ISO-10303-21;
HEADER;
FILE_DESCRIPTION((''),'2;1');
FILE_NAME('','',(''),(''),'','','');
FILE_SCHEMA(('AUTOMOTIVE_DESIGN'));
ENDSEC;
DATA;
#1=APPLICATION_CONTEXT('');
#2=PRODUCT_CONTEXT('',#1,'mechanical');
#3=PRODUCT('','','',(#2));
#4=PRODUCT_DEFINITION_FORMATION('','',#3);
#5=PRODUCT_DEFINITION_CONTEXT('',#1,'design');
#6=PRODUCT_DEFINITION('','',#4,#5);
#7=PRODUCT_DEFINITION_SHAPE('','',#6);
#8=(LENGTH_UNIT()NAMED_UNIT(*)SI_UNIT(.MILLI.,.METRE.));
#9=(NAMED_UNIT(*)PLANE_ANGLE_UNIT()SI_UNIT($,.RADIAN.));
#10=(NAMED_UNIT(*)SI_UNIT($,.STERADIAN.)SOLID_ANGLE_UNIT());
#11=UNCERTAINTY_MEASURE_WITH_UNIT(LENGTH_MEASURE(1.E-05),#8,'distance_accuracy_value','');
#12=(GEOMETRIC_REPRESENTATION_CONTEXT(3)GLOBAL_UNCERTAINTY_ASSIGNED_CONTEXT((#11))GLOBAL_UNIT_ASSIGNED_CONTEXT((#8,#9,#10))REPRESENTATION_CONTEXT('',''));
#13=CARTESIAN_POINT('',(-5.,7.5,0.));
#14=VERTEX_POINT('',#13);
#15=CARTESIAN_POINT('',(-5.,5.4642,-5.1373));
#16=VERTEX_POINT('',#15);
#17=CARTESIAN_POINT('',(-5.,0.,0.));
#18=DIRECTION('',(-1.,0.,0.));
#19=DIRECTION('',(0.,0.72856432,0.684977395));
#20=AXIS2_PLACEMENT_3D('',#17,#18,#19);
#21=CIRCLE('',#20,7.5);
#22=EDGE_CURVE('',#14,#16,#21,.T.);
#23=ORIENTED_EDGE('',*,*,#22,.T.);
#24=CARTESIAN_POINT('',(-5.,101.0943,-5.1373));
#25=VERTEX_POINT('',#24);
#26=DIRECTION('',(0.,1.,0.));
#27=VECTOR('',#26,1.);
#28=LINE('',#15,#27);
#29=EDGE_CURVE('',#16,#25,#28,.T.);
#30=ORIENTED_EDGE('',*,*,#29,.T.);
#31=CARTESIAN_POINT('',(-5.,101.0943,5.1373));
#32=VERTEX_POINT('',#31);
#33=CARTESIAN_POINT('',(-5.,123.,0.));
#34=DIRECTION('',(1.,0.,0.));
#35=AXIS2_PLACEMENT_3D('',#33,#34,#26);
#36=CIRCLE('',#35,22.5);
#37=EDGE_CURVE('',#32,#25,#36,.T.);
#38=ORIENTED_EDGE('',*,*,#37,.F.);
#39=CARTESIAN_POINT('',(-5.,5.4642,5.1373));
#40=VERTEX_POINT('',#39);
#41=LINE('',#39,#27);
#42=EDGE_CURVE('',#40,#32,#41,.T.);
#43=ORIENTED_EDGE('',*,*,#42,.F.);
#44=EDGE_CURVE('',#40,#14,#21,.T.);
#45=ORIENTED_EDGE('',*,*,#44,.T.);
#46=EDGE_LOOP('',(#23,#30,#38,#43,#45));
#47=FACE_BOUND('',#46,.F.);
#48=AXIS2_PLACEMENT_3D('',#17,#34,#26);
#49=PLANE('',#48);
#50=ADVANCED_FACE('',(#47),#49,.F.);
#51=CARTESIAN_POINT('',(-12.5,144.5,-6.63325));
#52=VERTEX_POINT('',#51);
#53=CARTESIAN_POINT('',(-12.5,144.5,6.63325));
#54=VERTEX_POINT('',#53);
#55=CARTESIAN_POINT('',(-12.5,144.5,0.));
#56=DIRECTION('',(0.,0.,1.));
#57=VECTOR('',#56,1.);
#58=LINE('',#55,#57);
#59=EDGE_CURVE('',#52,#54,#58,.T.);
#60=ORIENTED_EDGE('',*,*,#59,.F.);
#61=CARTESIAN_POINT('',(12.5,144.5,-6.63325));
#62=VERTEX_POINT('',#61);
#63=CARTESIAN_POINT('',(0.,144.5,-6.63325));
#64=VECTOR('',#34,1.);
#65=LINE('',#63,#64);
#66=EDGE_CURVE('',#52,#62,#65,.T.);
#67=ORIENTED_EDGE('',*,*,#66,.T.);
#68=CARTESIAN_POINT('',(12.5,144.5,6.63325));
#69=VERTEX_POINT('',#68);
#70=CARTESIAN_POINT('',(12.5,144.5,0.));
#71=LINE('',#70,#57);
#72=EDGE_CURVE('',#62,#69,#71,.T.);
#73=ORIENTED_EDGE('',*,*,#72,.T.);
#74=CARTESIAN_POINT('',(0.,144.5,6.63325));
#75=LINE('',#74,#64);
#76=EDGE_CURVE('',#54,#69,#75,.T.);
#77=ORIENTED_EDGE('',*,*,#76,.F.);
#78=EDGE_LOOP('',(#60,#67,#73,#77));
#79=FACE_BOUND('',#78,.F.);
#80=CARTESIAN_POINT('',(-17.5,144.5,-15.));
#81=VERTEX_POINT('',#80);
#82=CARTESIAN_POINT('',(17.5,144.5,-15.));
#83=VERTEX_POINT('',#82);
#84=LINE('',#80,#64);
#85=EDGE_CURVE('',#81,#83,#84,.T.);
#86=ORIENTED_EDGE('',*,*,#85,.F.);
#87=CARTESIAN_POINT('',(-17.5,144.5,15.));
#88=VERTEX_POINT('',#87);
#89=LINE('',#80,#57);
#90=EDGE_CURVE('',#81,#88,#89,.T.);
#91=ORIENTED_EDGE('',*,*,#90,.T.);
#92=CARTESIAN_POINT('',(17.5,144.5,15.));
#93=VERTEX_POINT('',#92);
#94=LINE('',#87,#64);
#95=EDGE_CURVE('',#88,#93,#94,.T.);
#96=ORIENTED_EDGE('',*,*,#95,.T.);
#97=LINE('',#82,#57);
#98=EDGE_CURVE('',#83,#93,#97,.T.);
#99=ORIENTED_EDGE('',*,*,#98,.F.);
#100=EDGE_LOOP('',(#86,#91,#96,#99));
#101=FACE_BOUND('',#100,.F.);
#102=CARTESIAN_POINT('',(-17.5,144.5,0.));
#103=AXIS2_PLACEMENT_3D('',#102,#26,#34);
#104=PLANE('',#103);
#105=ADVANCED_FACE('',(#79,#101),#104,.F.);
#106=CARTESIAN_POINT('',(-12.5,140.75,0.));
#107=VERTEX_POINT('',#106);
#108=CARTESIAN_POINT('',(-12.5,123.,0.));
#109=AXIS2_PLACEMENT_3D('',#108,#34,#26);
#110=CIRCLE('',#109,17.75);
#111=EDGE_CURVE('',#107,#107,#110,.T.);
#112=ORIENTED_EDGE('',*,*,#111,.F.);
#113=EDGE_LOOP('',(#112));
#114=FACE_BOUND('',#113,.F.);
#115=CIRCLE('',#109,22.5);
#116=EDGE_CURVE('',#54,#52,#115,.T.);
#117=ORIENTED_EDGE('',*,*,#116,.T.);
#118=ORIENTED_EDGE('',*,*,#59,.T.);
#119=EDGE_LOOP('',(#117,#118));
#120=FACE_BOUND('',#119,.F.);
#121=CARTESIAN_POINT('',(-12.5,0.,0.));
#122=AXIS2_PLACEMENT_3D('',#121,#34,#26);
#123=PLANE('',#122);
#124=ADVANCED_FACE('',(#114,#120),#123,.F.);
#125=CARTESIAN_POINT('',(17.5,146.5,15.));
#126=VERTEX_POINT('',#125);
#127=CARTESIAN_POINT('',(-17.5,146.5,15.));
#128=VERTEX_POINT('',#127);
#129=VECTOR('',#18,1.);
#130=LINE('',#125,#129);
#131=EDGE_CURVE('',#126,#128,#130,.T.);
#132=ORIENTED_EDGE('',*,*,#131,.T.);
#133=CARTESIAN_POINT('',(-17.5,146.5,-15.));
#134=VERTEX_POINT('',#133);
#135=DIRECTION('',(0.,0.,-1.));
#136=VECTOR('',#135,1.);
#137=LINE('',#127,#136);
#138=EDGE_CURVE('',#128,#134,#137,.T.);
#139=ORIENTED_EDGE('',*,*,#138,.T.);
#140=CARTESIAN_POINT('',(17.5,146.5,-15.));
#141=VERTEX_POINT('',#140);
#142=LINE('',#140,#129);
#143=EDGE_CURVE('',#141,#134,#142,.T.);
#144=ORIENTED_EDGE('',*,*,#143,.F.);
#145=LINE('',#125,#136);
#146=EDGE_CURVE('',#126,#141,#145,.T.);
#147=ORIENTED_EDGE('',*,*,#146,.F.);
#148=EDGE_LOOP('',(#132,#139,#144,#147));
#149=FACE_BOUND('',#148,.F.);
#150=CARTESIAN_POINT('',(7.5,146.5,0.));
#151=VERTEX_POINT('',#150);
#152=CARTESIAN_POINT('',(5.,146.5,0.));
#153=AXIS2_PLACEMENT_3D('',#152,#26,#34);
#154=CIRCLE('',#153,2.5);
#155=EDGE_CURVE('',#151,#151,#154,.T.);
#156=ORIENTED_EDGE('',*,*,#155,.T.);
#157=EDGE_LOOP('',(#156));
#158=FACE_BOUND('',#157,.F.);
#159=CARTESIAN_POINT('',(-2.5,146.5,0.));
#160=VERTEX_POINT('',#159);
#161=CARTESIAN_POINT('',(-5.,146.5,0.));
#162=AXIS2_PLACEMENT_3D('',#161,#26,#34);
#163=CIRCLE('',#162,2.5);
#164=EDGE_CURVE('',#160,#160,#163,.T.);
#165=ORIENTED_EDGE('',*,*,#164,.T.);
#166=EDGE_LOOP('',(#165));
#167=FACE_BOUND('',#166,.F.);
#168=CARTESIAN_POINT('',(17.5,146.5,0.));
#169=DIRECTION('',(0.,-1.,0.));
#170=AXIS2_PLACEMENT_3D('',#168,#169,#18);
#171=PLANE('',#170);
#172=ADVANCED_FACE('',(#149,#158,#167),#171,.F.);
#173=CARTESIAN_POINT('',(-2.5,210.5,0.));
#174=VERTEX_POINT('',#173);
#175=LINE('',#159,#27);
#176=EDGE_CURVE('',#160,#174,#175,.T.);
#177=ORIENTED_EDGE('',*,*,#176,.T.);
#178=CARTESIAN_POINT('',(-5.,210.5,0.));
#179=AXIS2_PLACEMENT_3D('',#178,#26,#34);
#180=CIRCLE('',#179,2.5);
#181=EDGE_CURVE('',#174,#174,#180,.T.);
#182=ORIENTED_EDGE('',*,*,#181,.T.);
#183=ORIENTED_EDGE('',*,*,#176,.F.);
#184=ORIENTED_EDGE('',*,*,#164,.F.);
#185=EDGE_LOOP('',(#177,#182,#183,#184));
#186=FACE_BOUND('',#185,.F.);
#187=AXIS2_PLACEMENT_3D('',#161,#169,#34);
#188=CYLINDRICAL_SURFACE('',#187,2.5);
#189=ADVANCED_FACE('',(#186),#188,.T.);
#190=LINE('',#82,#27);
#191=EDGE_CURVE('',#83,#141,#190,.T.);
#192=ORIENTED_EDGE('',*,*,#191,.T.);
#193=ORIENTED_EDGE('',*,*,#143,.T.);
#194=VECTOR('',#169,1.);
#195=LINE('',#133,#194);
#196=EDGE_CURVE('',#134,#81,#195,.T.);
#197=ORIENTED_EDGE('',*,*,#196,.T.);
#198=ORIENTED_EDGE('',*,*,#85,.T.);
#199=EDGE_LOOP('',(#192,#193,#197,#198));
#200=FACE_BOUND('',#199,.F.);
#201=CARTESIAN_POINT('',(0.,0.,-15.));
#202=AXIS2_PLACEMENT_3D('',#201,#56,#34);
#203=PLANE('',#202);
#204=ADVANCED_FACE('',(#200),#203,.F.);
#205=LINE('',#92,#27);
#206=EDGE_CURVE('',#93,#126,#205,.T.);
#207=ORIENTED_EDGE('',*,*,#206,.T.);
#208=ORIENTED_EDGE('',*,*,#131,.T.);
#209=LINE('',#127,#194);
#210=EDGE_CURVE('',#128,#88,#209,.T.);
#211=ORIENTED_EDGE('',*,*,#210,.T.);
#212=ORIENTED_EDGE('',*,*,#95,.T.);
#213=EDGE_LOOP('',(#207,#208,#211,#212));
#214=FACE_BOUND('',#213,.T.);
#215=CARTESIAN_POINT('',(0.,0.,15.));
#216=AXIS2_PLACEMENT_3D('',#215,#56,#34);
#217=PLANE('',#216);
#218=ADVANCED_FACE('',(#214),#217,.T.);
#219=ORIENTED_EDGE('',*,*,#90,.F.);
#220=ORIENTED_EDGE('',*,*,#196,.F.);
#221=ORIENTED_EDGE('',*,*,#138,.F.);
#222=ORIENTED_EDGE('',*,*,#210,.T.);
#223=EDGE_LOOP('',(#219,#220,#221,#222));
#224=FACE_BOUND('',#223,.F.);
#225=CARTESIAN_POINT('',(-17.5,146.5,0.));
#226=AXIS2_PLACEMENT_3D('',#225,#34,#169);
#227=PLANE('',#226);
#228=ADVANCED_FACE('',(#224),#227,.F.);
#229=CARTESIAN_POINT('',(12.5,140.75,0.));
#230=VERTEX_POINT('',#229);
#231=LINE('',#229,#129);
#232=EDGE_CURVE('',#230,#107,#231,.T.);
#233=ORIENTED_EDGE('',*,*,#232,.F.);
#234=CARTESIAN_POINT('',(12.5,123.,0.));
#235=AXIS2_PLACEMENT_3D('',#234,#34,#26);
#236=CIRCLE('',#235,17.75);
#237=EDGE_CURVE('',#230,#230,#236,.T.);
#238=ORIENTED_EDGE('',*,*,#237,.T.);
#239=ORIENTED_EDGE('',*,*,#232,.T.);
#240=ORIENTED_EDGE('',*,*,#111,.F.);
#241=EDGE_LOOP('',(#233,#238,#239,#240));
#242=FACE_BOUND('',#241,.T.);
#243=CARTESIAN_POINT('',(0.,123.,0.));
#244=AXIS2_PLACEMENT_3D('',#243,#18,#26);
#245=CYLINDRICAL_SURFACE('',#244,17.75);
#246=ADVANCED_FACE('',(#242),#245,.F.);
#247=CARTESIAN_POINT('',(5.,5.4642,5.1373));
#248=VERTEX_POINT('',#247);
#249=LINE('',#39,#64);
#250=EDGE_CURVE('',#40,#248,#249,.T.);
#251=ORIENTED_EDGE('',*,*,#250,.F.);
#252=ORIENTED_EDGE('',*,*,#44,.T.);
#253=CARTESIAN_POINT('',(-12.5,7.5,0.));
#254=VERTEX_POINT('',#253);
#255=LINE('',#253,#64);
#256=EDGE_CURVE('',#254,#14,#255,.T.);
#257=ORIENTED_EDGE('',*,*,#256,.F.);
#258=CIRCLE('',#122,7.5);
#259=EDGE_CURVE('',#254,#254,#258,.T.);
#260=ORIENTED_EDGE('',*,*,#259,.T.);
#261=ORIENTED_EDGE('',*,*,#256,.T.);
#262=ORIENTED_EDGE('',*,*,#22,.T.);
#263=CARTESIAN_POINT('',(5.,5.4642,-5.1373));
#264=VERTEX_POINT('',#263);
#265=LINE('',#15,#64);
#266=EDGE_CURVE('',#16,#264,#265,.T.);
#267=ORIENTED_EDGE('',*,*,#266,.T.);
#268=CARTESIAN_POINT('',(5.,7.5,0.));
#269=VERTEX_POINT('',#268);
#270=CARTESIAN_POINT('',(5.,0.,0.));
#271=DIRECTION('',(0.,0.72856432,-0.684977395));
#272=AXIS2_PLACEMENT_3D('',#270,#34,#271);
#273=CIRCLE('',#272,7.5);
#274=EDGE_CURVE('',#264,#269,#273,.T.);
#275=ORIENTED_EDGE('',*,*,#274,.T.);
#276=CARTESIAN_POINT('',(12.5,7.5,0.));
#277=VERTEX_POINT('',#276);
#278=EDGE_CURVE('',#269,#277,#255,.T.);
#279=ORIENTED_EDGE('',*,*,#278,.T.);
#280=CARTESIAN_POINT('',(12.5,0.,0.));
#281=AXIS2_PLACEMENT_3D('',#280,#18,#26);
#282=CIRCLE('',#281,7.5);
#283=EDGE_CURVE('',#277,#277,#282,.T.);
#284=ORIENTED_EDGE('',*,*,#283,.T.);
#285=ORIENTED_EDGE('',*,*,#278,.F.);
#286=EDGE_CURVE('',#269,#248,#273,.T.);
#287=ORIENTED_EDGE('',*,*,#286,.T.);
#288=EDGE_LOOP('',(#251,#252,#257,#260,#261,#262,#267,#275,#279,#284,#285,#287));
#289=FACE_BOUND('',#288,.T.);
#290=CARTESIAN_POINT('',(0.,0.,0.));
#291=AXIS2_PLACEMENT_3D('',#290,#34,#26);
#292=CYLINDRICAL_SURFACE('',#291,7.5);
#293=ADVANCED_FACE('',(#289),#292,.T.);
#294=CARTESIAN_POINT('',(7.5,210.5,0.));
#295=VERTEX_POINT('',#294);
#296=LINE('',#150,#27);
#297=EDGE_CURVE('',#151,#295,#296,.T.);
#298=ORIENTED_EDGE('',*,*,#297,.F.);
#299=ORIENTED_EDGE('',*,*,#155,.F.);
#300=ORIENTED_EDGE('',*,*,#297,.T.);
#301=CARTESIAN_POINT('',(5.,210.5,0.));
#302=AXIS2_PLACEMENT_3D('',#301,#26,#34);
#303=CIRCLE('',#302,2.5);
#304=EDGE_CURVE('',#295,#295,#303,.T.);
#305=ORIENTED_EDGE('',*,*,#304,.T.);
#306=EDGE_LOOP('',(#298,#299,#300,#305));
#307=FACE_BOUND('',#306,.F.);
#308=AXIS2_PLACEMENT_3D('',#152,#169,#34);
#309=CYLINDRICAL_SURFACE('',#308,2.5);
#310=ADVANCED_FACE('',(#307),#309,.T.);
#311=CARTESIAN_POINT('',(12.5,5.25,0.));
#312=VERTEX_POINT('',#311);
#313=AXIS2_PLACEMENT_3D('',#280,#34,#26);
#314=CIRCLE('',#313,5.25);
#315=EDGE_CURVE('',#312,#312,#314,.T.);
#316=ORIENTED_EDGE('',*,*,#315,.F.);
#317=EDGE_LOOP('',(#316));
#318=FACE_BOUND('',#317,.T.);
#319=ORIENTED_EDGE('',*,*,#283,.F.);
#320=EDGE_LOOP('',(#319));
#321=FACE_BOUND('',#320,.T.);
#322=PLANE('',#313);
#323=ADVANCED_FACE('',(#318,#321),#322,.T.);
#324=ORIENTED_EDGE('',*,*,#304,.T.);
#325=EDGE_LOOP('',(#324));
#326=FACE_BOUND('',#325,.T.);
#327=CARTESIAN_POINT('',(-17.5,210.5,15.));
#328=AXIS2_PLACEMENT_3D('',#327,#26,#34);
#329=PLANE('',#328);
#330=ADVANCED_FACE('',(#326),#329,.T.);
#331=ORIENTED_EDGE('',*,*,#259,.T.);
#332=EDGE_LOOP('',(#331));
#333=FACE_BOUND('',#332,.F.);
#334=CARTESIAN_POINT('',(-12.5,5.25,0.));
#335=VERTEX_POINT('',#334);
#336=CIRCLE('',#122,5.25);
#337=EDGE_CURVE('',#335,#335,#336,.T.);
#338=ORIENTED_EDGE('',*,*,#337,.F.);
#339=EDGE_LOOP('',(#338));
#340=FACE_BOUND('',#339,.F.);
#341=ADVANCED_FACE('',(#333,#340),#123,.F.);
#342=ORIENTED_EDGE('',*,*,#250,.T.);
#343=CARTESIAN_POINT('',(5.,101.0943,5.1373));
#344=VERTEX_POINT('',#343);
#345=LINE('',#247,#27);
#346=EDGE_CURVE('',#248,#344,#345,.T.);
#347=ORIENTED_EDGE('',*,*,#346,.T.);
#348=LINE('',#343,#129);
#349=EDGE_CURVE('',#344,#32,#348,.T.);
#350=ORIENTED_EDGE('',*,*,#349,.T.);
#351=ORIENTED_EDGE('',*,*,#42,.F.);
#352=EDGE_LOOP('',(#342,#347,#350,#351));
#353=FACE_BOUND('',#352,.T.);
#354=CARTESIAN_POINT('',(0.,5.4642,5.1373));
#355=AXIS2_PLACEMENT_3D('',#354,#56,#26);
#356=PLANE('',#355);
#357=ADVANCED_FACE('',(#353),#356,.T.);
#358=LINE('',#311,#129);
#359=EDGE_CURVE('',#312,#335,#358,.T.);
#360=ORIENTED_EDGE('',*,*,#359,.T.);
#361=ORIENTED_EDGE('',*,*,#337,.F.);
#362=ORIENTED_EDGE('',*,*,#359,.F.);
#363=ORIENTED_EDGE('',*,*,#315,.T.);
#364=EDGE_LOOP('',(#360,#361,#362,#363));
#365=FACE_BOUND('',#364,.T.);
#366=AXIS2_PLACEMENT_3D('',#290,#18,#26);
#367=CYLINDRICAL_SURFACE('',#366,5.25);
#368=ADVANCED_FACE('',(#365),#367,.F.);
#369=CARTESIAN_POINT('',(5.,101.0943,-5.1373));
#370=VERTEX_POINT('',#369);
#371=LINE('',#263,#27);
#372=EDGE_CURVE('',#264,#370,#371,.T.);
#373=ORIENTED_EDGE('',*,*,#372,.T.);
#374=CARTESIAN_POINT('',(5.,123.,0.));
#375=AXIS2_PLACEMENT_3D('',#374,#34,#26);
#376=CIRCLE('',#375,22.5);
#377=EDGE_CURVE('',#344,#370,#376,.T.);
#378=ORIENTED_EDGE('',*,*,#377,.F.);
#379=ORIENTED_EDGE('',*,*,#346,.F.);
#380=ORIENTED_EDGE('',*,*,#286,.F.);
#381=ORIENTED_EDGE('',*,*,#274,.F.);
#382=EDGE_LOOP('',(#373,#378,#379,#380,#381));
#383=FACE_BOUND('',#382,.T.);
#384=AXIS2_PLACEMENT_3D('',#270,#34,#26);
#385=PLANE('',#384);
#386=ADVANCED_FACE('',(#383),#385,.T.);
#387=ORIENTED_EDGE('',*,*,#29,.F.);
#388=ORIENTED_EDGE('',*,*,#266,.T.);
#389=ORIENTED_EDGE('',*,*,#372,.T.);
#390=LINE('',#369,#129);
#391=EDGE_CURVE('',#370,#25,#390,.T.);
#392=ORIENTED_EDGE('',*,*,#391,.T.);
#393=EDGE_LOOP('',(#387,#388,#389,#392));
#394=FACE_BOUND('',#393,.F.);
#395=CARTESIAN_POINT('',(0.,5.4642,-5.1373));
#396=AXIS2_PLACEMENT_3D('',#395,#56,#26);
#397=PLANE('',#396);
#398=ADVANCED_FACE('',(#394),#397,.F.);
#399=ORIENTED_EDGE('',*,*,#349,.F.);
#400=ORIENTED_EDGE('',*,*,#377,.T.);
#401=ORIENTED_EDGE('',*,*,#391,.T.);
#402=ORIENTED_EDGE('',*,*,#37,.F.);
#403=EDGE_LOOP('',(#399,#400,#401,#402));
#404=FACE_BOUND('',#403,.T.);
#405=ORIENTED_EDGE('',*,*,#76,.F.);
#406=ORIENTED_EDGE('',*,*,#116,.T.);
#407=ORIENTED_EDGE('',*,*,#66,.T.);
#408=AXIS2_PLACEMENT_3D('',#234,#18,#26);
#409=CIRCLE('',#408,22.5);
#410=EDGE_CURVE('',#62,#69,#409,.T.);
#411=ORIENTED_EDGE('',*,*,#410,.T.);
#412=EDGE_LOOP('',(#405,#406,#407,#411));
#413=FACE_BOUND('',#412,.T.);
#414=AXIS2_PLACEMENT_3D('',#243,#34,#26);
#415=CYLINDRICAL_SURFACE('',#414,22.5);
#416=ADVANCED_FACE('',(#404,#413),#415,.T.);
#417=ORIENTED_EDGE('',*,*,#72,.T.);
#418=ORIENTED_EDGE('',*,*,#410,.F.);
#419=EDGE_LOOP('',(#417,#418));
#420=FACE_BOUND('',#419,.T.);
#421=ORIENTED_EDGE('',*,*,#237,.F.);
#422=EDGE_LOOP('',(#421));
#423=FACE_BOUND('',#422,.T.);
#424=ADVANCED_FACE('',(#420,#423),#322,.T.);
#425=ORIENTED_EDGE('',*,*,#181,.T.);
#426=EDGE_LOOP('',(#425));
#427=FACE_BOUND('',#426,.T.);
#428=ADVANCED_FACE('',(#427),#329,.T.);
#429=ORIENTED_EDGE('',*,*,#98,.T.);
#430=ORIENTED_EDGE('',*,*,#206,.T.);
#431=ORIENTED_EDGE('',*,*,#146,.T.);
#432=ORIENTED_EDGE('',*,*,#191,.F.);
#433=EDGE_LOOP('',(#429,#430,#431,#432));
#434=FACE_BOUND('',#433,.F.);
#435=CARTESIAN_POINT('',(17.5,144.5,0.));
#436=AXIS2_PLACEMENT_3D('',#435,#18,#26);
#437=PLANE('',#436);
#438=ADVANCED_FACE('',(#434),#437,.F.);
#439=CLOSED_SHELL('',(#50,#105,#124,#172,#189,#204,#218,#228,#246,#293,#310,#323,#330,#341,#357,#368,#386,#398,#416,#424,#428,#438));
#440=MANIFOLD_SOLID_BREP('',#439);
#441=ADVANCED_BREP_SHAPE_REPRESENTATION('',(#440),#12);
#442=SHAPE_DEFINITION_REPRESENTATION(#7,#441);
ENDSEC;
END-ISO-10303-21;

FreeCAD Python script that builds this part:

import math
import FreeCAD as App
import Part
import Sketcher

V = App.Vector

doc = App.newDocument("Part")
body = doc.addObject("PartDesign::Body", "Body")
body.AllowCompound = True

sketch1 = doc.addObject("Sketcher::SketchObject", "Sketch")
body.addObject(sketch1)
sketch1.AttachmentSupport = (doc.YZ_Plane, [""])
sketch1.MapMode = "FlatFace"
sketch1.addGeometry(Part.Circle(V(0, 0, 0), V(0, 0, 1), 7.5), False)
sketch1.addGeometry(Part.Circle(V(0, 0, 0), V(0, 0, 1), 5.25), False)
sketch1.addGeometry(Part.Circle(V(123, 0, 0), V(0, 0, 1), 22.5), False)
sketch1.addGeometry(Part.Circle(V(123, 0, 0), V(0, 0, 1), 17.75), False)
sketch1.addConstraint(Sketcher.Constraint("Coincident", 0, 3, -1, 1))
sketch1.addConstraint(Sketcher.Constraint("Coincident", 1, 3, -1, 1))
sketch1.addConstraint(Sketcher.Constraint("Coincident", 3, 3, 2, 3))
sketch1.addConstraint(Sketcher.Constraint("PointOnObject", 2, 3, -1))
sketch1.addConstraint(Sketcher.Constraint("Diameter", 0, 15.0))
sketch1.addConstraint(Sketcher.Constraint("Diameter", 2, 45.0))
sketch1.addConstraint(Sketcher.Constraint("Diameter", 1, 10.5))
sketch1.addConstraint(Sketcher.Constraint("Diameter", 3, 35.5))
sketch1.addConstraint(Sketcher.Constraint("DistanceX", -1, 1, 2, 3, 123.0))
pad1 = doc.addObject("PartDesign::Pad", "Pad")
body.addObject(pad1)
pad1.Profile = sketch1
pad1.Length = 25
pad1.Midplane = True

sketch2 = doc.addObject("Sketcher::SketchObject", "Sketch001")
body.addObject(sketch2)
sketch2.AttachmentSupport = (doc.YZ_Plane, [""])
sketch2.MapMode = "FlatFace"
sketch2.addGeometry(Part.LineSegment(V(101.0943, 5.1373, 0), V(5.4642, 5.1373, 0)), False)
sketch2.addGeometry(Part.ArcOfCircle(Part.Circle(V(0, 0, 0), V(0, 0, 1), 7.5), math.radians(-43.233829), math.radians(43.233829)), False)
sketch2.addGeometry(Part.LineSegment(V(5.4642, -5.1373, 0), V(101.0943, -5.1373, 0)), False)
sketch2.addGeometry(Part.ArcOfCircle(Part.Circle(V(123, 0, 0), V(0, 0, 1), 22.5), math.radians(166.801576), math.radians(193.198424)), False)
sketch2.addConstraint(Sketcher.Constraint("Coincident", 0, 2, 1, 2))
sketch2.addConstraint(Sketcher.Constraint("Coincident", 1, 1, 2, 1))
sketch2.addConstraint(Sketcher.Constraint("Coincident", 2, 2, 3, 2))
sketch2.addConstraint(Sketcher.Constraint("Coincident", 3, 1, 0, 1))
sketch2.addConstraint(Sketcher.Constraint("Horizontal", 0))
sketch2.addConstraint(Sketcher.Constraint("Horizontal", 2))
sketch2.addConstraint(Sketcher.Constraint("Coincident", 1, 3, -1, 1))
sketch2.addConstraint(Sketcher.Constraint("Symmetric", 2, 2, 3, 1, -1))
sketch2.addConstraint(Sketcher.Constraint("Radius", 1, 7.5))
sketch2.addConstraint(Sketcher.Constraint("Radius", 3, 22.5))
sketch2.addConstraint(Sketcher.Constraint("DistanceX", -1, 1, 3, 3, 123.0))
sketch2.addConstraint(Sketcher.Constraint("DistanceX", 0, 2, 0, 1, 95.63))
pad2 = doc.addObject("PartDesign::Pad", "Pad001")
body.addObject(pad2)
pad2.Profile = sketch2
pad2.Length = 10
pad2.Midplane = True

sketch3 = doc.addObject("Sketcher::SketchObject", "Sketch002")
body.addObject(sketch3)
sketch3.AttachmentSupport = (doc.XY_Plane, [""])
sketch3.MapMode = "FlatFace"
sketch3.addGeometry(Part.LineSegment(V(-17.5, 146.5, 0), V(-17.5, 144.5, 0)), False)
sketch3.addGeometry(Part.LineSegment(V(-17.5, 144.5, 0), V(17.5, 144.5, 0)), False)
sketch3.addGeometry(Part.LineSegment(V(17.5, 144.5, 0), V(17.5, 146.5, 0)), False)
sketch3.addGeometry(Part.LineSegment(V(17.5, 146.5, 0), V(-17.5, 146.5, 0)), False)
sketch3.addConstraint(Sketcher.Constraint("Coincident", 0, 2, 1, 1))
sketch3.addConstraint(Sketcher.Constraint("Coincident", 1, 2, 2, 1))
sketch3.addConstraint(Sketcher.Constraint("Coincident", 2, 2, 3, 1))
sketch3.addConstraint(Sketcher.Constraint("Coincident", 3, 2, 0, 1))
sketch3.addConstraint(Sketcher.Constraint("Vertical", 0))
sketch3.addConstraint(Sketcher.Constraint("Horizontal", 1))
sketch3.addConstraint(Sketcher.Constraint("Vertical", 2))
sketch3.addConstraint(Sketcher.Constraint("Horizontal", 3))
sketch3.addConstraint(Sketcher.Constraint("DistanceX", 1, 1, 1, 2, 35.0))
sketch3.addConstraint(Sketcher.Constraint("DistanceY", 0, 2, 0, 1, 2.0))
sketch3.addConstraint(Sketcher.Constraint("DistanceX", 0, 2, -1, 1, 17.5))
sketch3.addConstraint(Sketcher.Constraint("DistanceY", -1, 1, 0, 2, 144.5))
pad3 = doc.addObject("PartDesign::Pad", "Pad002")
body.addObject(pad3)
pad3.Profile = sketch3
pad3.Length = 30
pad3.Midplane = True

sketch4 = doc.addObject("Sketcher::SketchObject", "Sketch003")
body.addObject(sketch4)
sketch4.AttachmentSupport = (doc.XZ_Plane, [""])
sketch4.MapMode = "FlatFace"
sketch4.AttachmentOffset = App.Placement(V(0, 0, -146.5), App.Rotation())
sketch4.addGeometry(Part.Circle(V(5, 0, 0), V(0, 0, 1), 2.5), False)
sketch4.addGeometry(Part.Circle(V(-5, 0, 0), V(0, 0, 1), 2.5), False)
sketch4.addConstraint(Sketcher.Constraint("Equal", 0, 1))
sketch4.addConstraint(Sketcher.Constraint("Symmetric", 0, 3, 1, 3, -1, 1))
sketch4.addConstraint(Sketcher.Constraint("PointOnObject", 0, 3, -1))
sketch4.addConstraint(Sketcher.Constraint("Diameter", 0, 5.0))
sketch4.addConstraint(Sketcher.Constraint("DistanceX", -1, 1, 0, 3, 5.0))
pad4 = doc.addObject("PartDesign::Pad", "Pad003")
body.addObject(pad4)
pad4.Profile = sketch4
pad4.Length = 64
pad4.Reversed = True

doc.recompute()
